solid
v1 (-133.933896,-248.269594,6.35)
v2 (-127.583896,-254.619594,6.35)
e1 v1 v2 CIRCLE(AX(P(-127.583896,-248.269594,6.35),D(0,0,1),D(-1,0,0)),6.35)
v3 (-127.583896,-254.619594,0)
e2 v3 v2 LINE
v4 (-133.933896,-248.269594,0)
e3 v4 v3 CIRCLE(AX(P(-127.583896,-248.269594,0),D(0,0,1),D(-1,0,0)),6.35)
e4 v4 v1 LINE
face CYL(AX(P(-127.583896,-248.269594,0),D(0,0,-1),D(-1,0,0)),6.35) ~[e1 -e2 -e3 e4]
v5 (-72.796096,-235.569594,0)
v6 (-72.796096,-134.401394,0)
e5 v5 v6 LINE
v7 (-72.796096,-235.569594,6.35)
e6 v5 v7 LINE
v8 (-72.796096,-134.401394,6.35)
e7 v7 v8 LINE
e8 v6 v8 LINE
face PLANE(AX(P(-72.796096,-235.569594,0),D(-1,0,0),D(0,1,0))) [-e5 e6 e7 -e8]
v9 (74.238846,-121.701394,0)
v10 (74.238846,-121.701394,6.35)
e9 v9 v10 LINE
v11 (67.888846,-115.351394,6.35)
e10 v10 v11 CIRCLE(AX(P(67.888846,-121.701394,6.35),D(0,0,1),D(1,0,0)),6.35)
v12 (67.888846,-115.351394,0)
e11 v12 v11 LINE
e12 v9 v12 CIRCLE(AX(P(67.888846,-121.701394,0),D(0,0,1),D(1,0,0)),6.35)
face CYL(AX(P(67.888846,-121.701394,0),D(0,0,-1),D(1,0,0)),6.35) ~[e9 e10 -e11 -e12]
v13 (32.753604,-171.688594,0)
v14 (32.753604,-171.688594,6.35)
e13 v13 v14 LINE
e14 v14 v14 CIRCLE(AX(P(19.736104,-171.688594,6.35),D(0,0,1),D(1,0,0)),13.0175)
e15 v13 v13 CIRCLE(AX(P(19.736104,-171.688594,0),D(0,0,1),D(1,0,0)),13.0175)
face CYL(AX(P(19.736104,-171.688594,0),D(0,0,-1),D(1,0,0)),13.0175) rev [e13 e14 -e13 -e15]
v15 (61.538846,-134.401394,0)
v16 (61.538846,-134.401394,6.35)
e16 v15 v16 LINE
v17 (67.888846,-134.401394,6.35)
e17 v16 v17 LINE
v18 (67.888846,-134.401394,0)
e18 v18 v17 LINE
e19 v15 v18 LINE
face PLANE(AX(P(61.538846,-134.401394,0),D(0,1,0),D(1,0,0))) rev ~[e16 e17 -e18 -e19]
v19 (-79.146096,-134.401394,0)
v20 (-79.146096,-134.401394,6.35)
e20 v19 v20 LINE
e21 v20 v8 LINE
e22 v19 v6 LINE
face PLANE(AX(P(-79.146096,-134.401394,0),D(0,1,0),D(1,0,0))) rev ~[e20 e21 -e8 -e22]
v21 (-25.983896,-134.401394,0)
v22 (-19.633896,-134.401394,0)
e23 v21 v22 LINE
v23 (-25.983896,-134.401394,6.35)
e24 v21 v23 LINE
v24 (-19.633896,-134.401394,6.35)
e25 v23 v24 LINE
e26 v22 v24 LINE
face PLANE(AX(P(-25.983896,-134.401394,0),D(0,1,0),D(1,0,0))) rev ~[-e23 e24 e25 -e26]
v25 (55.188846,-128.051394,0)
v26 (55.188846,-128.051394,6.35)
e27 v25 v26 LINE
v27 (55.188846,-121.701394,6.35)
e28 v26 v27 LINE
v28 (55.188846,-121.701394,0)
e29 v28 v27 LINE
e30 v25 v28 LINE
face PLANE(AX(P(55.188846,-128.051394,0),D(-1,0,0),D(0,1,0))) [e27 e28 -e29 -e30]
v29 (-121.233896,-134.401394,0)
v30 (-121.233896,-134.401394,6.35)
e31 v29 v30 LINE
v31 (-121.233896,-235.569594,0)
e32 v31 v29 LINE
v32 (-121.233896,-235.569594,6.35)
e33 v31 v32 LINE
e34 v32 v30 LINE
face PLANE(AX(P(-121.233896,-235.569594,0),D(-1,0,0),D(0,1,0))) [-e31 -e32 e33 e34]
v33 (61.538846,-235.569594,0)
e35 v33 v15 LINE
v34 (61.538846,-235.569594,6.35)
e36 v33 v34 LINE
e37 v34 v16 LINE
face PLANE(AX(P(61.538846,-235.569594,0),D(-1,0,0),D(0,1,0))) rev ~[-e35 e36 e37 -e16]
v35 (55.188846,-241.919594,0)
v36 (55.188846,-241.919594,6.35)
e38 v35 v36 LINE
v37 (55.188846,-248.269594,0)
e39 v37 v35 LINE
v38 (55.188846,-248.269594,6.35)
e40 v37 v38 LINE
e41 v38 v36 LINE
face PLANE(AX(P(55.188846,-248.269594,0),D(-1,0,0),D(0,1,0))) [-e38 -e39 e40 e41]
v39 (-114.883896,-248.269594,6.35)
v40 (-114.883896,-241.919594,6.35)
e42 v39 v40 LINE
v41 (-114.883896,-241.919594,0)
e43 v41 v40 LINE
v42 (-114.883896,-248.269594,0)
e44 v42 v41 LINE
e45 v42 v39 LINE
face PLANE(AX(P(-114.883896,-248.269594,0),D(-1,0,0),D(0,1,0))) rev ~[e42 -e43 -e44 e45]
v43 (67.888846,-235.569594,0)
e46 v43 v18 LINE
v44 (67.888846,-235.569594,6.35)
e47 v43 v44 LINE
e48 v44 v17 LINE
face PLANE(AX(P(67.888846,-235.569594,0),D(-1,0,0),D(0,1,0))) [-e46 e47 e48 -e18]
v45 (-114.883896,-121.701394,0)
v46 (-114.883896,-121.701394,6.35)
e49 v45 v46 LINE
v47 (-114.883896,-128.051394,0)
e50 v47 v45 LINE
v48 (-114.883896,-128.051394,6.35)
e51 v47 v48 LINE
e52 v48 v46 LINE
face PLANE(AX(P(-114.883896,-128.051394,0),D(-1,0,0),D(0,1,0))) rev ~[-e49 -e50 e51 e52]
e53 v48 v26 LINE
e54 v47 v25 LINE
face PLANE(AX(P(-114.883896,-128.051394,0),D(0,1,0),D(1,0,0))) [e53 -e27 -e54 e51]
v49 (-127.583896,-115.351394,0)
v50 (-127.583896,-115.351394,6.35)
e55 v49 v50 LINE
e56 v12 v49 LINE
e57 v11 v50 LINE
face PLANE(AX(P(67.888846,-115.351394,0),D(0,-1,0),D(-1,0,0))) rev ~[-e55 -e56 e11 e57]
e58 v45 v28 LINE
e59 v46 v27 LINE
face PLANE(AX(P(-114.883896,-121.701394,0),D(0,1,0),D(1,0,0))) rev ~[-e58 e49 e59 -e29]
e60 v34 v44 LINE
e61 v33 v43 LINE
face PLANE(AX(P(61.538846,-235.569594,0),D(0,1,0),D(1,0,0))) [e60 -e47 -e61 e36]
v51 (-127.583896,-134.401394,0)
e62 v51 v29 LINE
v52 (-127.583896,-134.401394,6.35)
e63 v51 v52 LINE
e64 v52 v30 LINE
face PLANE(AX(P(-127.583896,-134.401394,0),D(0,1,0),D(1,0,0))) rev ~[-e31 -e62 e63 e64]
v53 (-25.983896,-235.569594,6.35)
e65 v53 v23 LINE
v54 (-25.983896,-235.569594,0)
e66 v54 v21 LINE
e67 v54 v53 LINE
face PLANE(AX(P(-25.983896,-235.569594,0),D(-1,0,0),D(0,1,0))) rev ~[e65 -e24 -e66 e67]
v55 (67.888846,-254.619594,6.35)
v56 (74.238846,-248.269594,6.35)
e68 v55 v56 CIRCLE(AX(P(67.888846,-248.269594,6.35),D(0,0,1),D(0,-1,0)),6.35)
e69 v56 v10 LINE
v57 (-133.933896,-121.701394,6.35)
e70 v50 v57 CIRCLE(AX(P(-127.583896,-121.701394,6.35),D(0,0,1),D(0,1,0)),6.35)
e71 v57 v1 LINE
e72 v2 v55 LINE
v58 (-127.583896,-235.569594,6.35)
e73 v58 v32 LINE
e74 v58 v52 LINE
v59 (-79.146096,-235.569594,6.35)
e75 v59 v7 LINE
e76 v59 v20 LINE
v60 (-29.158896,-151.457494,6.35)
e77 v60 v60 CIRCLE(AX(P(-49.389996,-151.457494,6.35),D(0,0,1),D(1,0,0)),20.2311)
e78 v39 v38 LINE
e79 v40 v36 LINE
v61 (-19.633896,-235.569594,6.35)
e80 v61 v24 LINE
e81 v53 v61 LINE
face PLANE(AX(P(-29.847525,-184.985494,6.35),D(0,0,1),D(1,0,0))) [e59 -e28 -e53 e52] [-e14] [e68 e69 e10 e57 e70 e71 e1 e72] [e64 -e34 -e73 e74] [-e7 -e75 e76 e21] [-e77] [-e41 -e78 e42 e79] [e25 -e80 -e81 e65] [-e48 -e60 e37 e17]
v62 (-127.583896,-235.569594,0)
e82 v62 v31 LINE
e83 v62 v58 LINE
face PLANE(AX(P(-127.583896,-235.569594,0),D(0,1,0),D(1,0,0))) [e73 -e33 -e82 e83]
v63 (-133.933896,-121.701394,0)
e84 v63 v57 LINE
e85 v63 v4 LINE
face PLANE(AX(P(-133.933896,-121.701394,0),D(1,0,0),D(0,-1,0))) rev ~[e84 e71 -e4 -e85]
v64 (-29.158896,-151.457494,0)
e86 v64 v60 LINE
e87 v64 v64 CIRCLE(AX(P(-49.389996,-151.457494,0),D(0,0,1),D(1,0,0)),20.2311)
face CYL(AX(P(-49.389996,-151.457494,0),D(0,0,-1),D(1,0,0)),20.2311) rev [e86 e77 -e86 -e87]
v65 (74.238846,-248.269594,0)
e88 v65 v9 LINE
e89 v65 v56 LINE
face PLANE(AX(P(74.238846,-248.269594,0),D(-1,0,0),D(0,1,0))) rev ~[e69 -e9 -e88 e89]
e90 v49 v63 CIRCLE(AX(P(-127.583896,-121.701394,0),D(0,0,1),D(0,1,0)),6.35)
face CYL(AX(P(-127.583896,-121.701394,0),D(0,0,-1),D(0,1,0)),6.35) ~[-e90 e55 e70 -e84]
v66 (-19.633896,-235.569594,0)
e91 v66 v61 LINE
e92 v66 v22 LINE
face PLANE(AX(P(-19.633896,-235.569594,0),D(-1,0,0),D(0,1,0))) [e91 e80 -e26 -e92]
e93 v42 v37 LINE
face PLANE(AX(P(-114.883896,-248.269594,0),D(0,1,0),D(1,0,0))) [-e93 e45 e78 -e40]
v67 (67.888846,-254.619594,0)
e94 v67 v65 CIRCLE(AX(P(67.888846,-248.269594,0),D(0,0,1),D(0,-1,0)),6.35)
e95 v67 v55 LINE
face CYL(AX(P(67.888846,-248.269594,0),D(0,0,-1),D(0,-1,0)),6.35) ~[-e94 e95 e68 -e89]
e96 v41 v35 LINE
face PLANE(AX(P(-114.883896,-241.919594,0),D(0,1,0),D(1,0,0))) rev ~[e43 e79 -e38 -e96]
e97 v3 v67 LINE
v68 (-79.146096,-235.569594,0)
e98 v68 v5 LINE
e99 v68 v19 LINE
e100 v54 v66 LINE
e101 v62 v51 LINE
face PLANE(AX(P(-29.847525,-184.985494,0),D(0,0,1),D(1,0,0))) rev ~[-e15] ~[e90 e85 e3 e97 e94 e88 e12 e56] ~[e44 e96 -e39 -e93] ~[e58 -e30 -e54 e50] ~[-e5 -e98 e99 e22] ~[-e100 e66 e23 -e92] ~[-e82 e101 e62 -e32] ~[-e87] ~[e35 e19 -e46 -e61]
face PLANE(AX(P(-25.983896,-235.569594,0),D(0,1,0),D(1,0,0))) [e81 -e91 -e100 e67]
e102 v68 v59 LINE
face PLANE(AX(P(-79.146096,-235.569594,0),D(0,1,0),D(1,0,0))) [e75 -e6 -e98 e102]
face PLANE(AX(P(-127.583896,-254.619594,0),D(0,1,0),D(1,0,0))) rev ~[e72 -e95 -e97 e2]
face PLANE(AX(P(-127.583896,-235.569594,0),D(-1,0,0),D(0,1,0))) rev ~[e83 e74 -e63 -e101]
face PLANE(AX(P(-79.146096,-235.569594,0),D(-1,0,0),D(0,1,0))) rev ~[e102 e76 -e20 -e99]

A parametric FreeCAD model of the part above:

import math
import FreeCAD as App
import Part
import Sketcher
Q = App.Units.Quantity

doc = App.newDocument("Part")
body = doc.addObject("PartDesign::Body", "Body")

# Sketch on XY plane
sketch1 = body.newObject("Sketcher::SketchObject", "Sketch")
sketch1.AttachmentSupport = (doc.getObject("XY_Plane"), [""])
sketch1.MapMode = "FlatFace"
sketch1.addGeometry([
    Part.LineSegment(App.Vector(-128, -255, 0), App.Vector(68, -255, 0)),  # 0
    Part.ArcOfCircle(Part.Circle(App.Vector(68, -248, 0), App.Vector(0, 0, 1), 6), math.radians(-90), math.radians(0)),  # 1
    Part.LineSegment(App.Vector(74, -248, 0), App.Vector(74, -122, 0)),  # 2
    Part.ArcOfCircle(Part.Circle(App.Vector(68, -122, 0), App.Vector(0, 0, 1), 6), math.radians(0), math.radians(90)),  # 3
    Part.LineSegment(App.Vector(68, -115, 0), App.Vector(-128, -115, 0)),  # 4
    Part.ArcOfCircle(Part.Circle(App.Vector(-128, -122, 0), App.Vector(0, 0, 1), 6), math.radians(90), math.radians(180)),  # 5
    Part.LineSegment(App.Vector(-134, -122, 0), App.Vector(-134, -248, 0)),  # 6
    Part.ArcOfCircle(Part.Circle(App.Vector(-128, -248, 0), App.Vector(0, 0, 1), 6), math.radians(180), math.radians(270)),  # 7
    Part.LineSegment(App.Vector(55, -248, 0), App.Vector(-115, -248, 0)),  # 8
    Part.LineSegment(App.Vector(-115, -248, 0), App.Vector(-115, -242, 0)),  # 9
    Part.LineSegment(App.Vector(-115, -242, 0), App.Vector(55, -242, 0)),  # 10
    Part.LineSegment(App.Vector(55, -242, 0), App.Vector(55, -248, 0)),  # 11
    Part.LineSegment(App.Vector(-121, -236, 0), App.Vector(-128, -236, 0)),  # 12
    Part.LineSegment(App.Vector(-128, -236, 0), App.Vector(-128, -134, 0)),  # 13
    Part.LineSegment(App.Vector(-128, -134, 0), App.Vector(-121, -134, 0)),  # 14
    Part.LineSegment(App.Vector(-121, -134, 0), App.Vector(-121, -236, 0)),  # 15
    Part.LineSegment(App.Vector(-73, -236, 0), App.Vector(-79, -236, 0)),  # 16
    Part.LineSegment(App.Vector(-79, -236, 0), App.Vector(-79, -134, 0)),  # 17
    Part.LineSegment(App.Vector(-79, -134, 0), App.Vector(-73, -134, 0)),  # 18
    Part.LineSegment(App.Vector(-73, -134, 0), App.Vector(-73, -236, 0)),  # 19
    Part.Circle(App.Vector(-49, -151, 0), App.Vector(0, 0, 1), 20),  # 20
    Part.LineSegment(App.Vector(55, -128, 0), App.Vector(-115, -128, 0)),  # 21
    Part.LineSegment(App.Vector(-115, -128, 0), App.Vector(-115, -122, 0)),  # 22
    Part.LineSegment(App.Vector(-115, -122, 0), App.Vector(55, -122, 0)),  # 23
    Part.LineSegment(App.Vector(55, -122, 0), App.Vector(55, -128, 0)),  # 24
    Part.LineSegment(App.Vector(-20, -236, 0), App.Vector(-26, -236, 0)),  # 25
    Part.LineSegment(App.Vector(-26, -236, 0), App.Vector(-26, -134, 0)),  # 26
    Part.LineSegment(App.Vector(-26, -134, 0), App.Vector(-20, -134, 0)),  # 27
    Part.LineSegment(App.Vector(-20, -134, 0), App.Vector(-20, -236, 0)),  # 28
    Part.Circle(App.Vector(20, -172, 0), App.Vector(0, 0, 1), 13),  # 29
    Part.LineSegment(App.Vector(68, -236, 0), App.Vector(62, -236, 0)),  # 30
    Part.LineSegment(App.Vector(62, -236, 0), App.Vector(62, -134, 0)),  # 31
    Part.LineSegment(App.Vector(62, -134, 0), App.Vector(68, -134, 0)),  # 32
    Part.LineSegment(App.Vector(68, -134, 0), App.Vector(68, -236, 0)),  # 33
], False)
sketch1.addConstraint([
    Sketcher.Constraint("Tangent", 0, 2, 1, 1),
    Sketcher.Constraint("Tangent", 1, 2, 2, 1),
    Sketcher.Constraint("Tangent", 2, 2, 3, 1),
    Sketcher.Constraint("Tangent", 3, 2, 4, 1),
    Sketcher.Constraint("Tangent", 4, 2, 5, 1),
    Sketcher.Constraint("Tangent", 5, 2, 6, 1),
    Sketcher.Constraint("Tangent", 6, 2, 7, 1),
    Sketcher.Constraint("Tangent", 7, 2, 0, 1),
    Sketcher.Constraint("Coincident", 8, 2, 9, 1),
    Sketcher.Constraint("Coincident", 9, 2, 10, 1),
    Sketcher.Constraint("Coincident", 10, 2, 11, 1),
    Sketcher.Constraint("Coincident", 11, 2, 8, 1),
    Sketcher.Constraint("Coincident", 12, 2, 13, 1),
    Sketcher.Constraint("Coincident", 13, 2, 14, 1),
    Sketcher.Constraint("Coincident", 14, 2, 15, 1),
    Sketcher.Constraint("Coincident", 15, 2, 12, 1),
    Sketcher.Constraint("Coincident", 16, 2, 17, 1),
    Sketcher.Constraint("Coincident", 17, 2, 18, 1),
    Sketcher.Constraint("Coincident", 18, 2, 19, 1),
    Sketcher.Constraint("Coincident", 19, 2, 16, 1),
    Sketcher.Constraint("Coincident", 21, 2, 22, 1),
    Sketcher.Constraint("Coincident", 22, 2, 23, 1),
    Sketcher.Constraint("Coincident", 23, 2, 24, 1),
    Sketcher.Constraint("Coincident", 24, 2, 21, 1),
    Sketcher.Constraint("Coincident", 25, 2, 26, 1),
    Sketcher.Constraint("Coincident", 26, 2, 27, 1),
    Sketcher.Constraint("Coincident", 27, 2, 28, 1),
    Sketcher.Constraint("Coincident", 28, 2, 25, 1),
    Sketcher.Constraint("Coincident", 30, 2, 31, 1),
    Sketcher.Constraint("Coincident", 31, 2, 32, 1),
    Sketcher.Constraint("Coincident", 32, 2, 33, 1),
    Sketcher.Constraint("Coincident", 33, 2, 30, 1),
    Sketcher.Constraint("Horizontal", 0),
    Sketcher.Constraint("Vertical", 2),
    Sketcher.Constraint("Horizontal", 4),
    Sketcher.Constraint("Vertical", 6),
    Sketcher.Constraint("Horizontal", 8),
    Sketcher.Constraint("Vertical", 9),
    Sketcher.Constraint("Horizontal", 10),
    Sketcher.Constraint("Vertical", 11),
    Sketcher.Constraint("Horizontal", 12),
    Sketcher.Constraint("Vertical", 13),
    Sketcher.Constraint("Horizontal", 14),
    Sketcher.Constraint("Vertical", 15),
    Sketcher.Constraint("Horizontal", 16),
    Sketcher.Constraint("Vertical", 17),
    Sketcher.Constraint("Horizontal", 18),
    Sketcher.Constraint("Vertical", 19),
    Sketcher.Constraint("Horizontal", 21),
    Sketcher.Constraint("Vertical", 22),
    Sketcher.Constraint("Horizontal", 23),
    Sketcher.Constraint("Vertical", 24),
    Sketcher.Constraint("Horizontal", 25),
    Sketcher.Constraint("Vertical", 26),
    Sketcher.Constraint("Horizontal", 27),
    Sketcher.Constraint("Vertical", 28),
    Sketcher.Constraint("Horizontal", 30),
    Sketcher.Constraint("Vertical", 31),
    Sketcher.Constraint("Horizontal", 32),
    Sketcher.Constraint("Vertical", 33),
    Sketcher.Constraint("Equal", 1, 3),
    Sketcher.Constraint("Equal", 3, 5),
    Sketcher.Constraint("Equal", 5, 7),
    Sketcher.Constraint("Horizontal", 6, 2, 8, 2),
    Sketcher.Constraint("Horizontal", 15, 2, 16, 2),
    Sketcher.Constraint("Horizontal", 14, 2, 17, 2),
    Sketcher.Constraint("Horizontal", 5, 2, 22, 2),
    Sketcher.Constraint("Horizontal", 19, 2, 25, 2),
    Sketcher.Constraint("Horizontal", 18, 2, 26, 2),
    Sketcher.Constraint("Horizontal", 28, 2, 30, 2),
    Sketcher.Constraint("Horizontal", 27, 2, 31, 2),
    Sketcher.Constraint("Vertical", 7, 2, 12, 2),
    Sketcher.Constraint("Vertical", 9, 2, 21, 2),
    Sketcher.Constraint("Vertical", 11, 2, 23, 2),
    Sketcher.Constraint("Vertical", 3, 2, 32, 2),
    Sketcher.Constraint("Equal", 14, 16),
    Sketcher.Constraint("Equal", 18, 25),
    Sketcher.Constraint("Equal", 27, 30),
    Sketcher.Constraint("Equal", 32, 9),
    Sketcher.Constraint("Equal", 11, 22),
    Sketcher.Constraint("Radius", 1, Q("0.25 in")),
    Sketcher.Constraint("Diameter", 20, Q("1.593 in")),
    Sketcher.Constraint("Diameter", 29, Q("1.025 in")),
    Sketcher.Constraint("DistanceX", 12, 2, 12, 1, Q("0.25 in")),
    Sketcher.Constraint("DistanceX", 5, 3, 29, 3, Q("5.8 in")),
    Sketcher.Constraint("DistanceX", 7, 3, 8, 2, Q("0.5 in")),
    Sketcher.Constraint("DistanceX", 10, 2, 1, 3, Q("0.5 in")),
    Sketcher.Constraint("DistanceY", 7, 3, 12, 2, Q("0.5 in")),
    Sketcher.Constraint("DistanceY", 13, 2, 5, 3, Q("0.5 in")),
    Sketcher.Constraint("DistanceX", 25, 2, 29, 3, Q("1.8 in")),
    Sketcher.Constraint("DistanceY", 2, 1, 2, 2, Q("4.983 in")),
    Sketcher.Constraint("DistanceY", 29, 3, 3, 3, Q("1.968 in")),
    Sketcher.Constraint("DistanceX", 9, 2, 16, 2, Q("1.407 in")),
    Sketcher.Constraint("DistanceX", 5, 3, 20, 3, Q("3.0785 in")),
    Sketcher.Constraint("DistanceY", 20, 3, 5, 3, Q("1.1715 in")),
    Sketcher.Constraint("DistanceX", 0, 1, 0, 2, 195.472742),
    Sketcher.Constraint("DistanceX", -1, 1, 1, 3, 67.888846),
    Sketcher.Constraint("DistanceY", 1, 3, -1, 1, 248.269594),
])
pad1 = body.newObject("PartDesign::Pad", "Pad")
pad1.Profile = sketch1
pad1.Length = Q("0.25 in")

doc.recompute()
